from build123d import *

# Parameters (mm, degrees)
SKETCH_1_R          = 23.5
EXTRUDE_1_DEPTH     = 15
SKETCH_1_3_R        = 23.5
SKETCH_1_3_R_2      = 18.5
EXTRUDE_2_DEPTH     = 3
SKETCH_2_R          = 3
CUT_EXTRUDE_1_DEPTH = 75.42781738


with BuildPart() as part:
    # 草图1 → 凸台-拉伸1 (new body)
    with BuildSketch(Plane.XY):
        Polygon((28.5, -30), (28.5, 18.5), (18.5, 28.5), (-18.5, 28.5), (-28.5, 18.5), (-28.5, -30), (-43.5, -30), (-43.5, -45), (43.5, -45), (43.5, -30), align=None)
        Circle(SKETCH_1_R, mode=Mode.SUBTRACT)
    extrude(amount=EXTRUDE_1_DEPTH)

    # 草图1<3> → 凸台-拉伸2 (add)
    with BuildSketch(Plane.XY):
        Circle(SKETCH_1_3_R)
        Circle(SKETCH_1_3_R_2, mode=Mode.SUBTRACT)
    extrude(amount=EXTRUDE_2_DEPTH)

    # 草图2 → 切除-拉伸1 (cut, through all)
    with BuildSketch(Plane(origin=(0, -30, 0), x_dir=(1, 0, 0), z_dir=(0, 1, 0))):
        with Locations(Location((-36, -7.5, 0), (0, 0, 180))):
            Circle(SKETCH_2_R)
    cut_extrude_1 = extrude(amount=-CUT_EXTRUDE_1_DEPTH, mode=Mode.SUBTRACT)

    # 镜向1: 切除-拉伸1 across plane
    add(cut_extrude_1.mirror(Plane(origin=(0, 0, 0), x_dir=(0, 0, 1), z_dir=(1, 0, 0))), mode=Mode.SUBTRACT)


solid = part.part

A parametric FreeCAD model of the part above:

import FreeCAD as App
import Part
import Sketcher

V = App.Vector

doc = App.newDocument("Part")
params = doc.addObject("Spreadsheet::Sheet", "Params")
for row, (alias, value) in enumerate([
    ("sketch1_diameter", "47 mm"),
    ("sketch1_width", "37 mm"),
    ("sketch1_width2", "15 mm"),
    ("sketch1_width3", "87 mm"),
    ("sketch1_height", "48.5 mm"),
    ("pad1_length", "15 mm"),
    ("sketch2_diameter", "47 mm"),
    ("sketch2_diameter2", "37 mm"),
    ("pad2_length", "3 mm"),
    ("sketch3_diameter", "6 mm"),
], start=1):
    params.set(f"A{row}", alias)
    params.set(f"B{row}", "=" + value)
    params.setAlias(f"B{row}", alias)

body = doc.addObject("PartDesign::Body", "Body")

sketch1 = body.newObject("Sketcher::SketchObject", "Sketch")
sketch1.AttachmentSupport = (doc.getObject("XY_Plane"), [""])
sketch1.MapMode = "FlatFace"
sketch1.addGeometry([
    Part.LineSegment(V(28, -30, 0), V(28, 18, 0)),
    Part.LineSegment(V(28, 18, 0), V(18, 28, 0)),
    Part.LineSegment(V(18, 28, 0), V(-18, 28, 0)),
    Part.LineSegment(V(-18, 28, 0), V(-28, 18, 0)),
    Part.LineSegment(V(-28, 18, 0), V(-28, -30, 0)),
    Part.LineSegment(V(-28, -30, 0), V(-44, -30, 0)),
    Part.LineSegment(V(-44, -30, 0), V(-44, -45, 0)),
    Part.LineSegment(V(-44, -45, 0), V(44, -45, 0)),
    Part.LineSegment(V(44, -45, 0), V(44, -30, 0)),
    Part.LineSegment(V(44, -30, 0), V(28, -30, 0)),
    Part.Circle(V(0, 0, 0), V(0, 0, 1), 24),
], False)
sketch1.addConstraint([
    Sketcher.Constraint("Coincident", 0, 2, 1, 1),
    Sketcher.Constraint("Coincident", 1, 2, 2, 1),
    Sketcher.Constraint("Coincident", 2, 2, 3, 1),
    Sketcher.Constraint("Coincident", 3, 2, 4, 1),
    Sketcher.Constraint("Coincident", 4, 2, 5, 1),
    Sketcher.Constraint("Coincident", 5, 2, 6, 1),
    Sketcher.Constraint("Coincident", 6, 2, 7, 1),
    Sketcher.Constraint("Coincident", 7, 2, 8, 1),
    Sketcher.Constraint("Coincident", 8, 2, 9, 1),
    Sketcher.Constraint("Coincident", 9, 2, 0, 1),
    Sketcher.Constraint("Vertical", 0),
    Sketcher.Constraint("Horizontal", 2),
    Sketcher.Constraint("Vertical", 4),
    Sketcher.Constraint("Horizontal", 5),
    Sketcher.Constraint("Vertical", 6),
    Sketcher.Constraint("Horizontal", 7),
    Sketcher.Constraint("Vertical", 8),
    Sketcher.Constraint("Horizontal", 9),
    Sketcher.Constraint("Coincident", 10, 3, -1, 1),
    Sketcher.Constraint("Symmetric", 0, 2, 3, 2, -2),
    Sketcher.Constraint("Symmetric", 5, 2, 8, 2, -2),
    Sketcher.Constraint("Perpendicular", 1, 3),
    Sketcher.Constraint("Equal", 9, 6),
    Sketcher.Constraint("Equal", 1, 3),
    Sketcher.Constraint("Diameter", 10, 47.0),
    Sketcher.Constraint("DistanceX", 2, 2, 2, 1, 37.0),
    Sketcher.Constraint("DistanceX", 5, 2, 5, 1, 15.0),
    Sketcher.Constraint("DistanceX", 7, 1, 7, 2, 87.0),
    Sketcher.Constraint("DistanceY", 0, 1, 0, 2, 48.5),
    Sketcher.Constraint("DistanceY", 4, 2, -1, 1, 30.0),
])
sketch1.setExpression("Constraints[24]", "Params.sketch1_diameter")
sketch1.setExpression("Constraints[25]", "Params.sketch1_width")
sketch1.setExpression("Constraints[26]", "Params.sketch1_width2")
sketch1.setExpression("Constraints[27]", "Params.sketch1_width3")
sketch1.setExpression("Constraints[28]", "Params.sketch1_height")
pad1 = body.newObject("PartDesign::Pad", "Pad")
pad1.Profile = sketch1
pad1.setExpression("Length", "Params.pad1_length")

sketch2 = body.newObject("Sketcher::SketchObject", "Sketch001")
sketch2.AttachmentSupport = (doc.getObject("XY_Plane"), [""])
sketch2.MapMode = "FlatFace"
sketch2.addGeometry([
    Part.Circle(V(0, 0, 0), V(0, 0, 1), 24),
    Part.Circle(V(0, 0, 0), V(0, 0, 1), 18),
], False)
sketch2.addConstraint([
    Sketcher.Constraint("Coincident", 0, 3, -1, 1),
    Sketcher.Constraint("Coincident", 1, 3, -1, 1),
    Sketcher.Constraint("Diameter", 0, 47.0),
    Sketcher.Constraint("Diameter", 1, 37.0),
])
sketch2.setExpression("Constraints[2]", "Params.sketch2_diameter")
sketch2.setExpression("Constraints[3]", "Params.sketch2_diameter2")
pad2 = body.newObject("PartDesign::Pad", "Pad001")
pad2.Profile = sketch2
pad2.setExpression("Length", "Params.pad2_length")

sketch3 = body.newObject("Sketcher::SketchObject", "Sketch002")
sketch3.AttachmentSupport = (doc.getObject("XZ_Plane"), [""])
sketch3.MapMode = "FlatFace"
sketch3.AttachmentOffset = App.Placement(V(0, 0, 30), App.Rotation())
sketch3.addGeometry(Part.Circle(V(-36, 7.5, 0), V(0, 0, 1), 3), False)
sketch3.addConstraint([
    Sketcher.Constraint("Diameter", 0, 6.0),
    Sketcher.Constraint("DistanceX", 0, 3, -1, 1, 36.0),
    Sketcher.Constraint("DistanceY", -1, 1, 0, 3, 7.5),
])
sketch3.setExpression("Constraints[0]", "Params.sketch3_diameter")
pocket1 = body.newObject("PartDesign::Pocket", "Pocket")
pocket1.Profile = sketch3
pocket1.Type = "ThroughAll"
pocket1.Reversed = True
doc.recompute()

mirrored = body.newObject("PartDesign::Mirrored", "Mirrored")
mirrored.Originals = [pocket1]
mirrored.MirrorPlane = (doc.getObject("YZ_Plane"), [""])
body.Tip = mirrored

doc.recompute()
